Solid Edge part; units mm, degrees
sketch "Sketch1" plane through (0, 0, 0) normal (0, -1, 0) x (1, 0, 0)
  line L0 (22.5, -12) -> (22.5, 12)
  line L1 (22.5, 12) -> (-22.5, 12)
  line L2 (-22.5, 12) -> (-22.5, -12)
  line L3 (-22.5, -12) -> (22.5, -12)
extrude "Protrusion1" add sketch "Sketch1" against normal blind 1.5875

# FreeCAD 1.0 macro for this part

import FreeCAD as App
import Part
import Sketcher

V = App.Vector
Q = App.Units.Quantity


def add_polygon(sketch, points):
    """Adds a closed chain of lines whose ends are joined by coincident constraints."""
    first, n = sketch.GeometryCount, len(points)
    for a, b in zip(points, points[1:] + points[:1]):
        sketch.addGeometry(Part.LineSegment(App.Vector(*a, 0), App.Vector(*b, 0)), False)
    for i in range(n):
        sketch.addConstraint(Sketcher.Constraint("Coincident", first + i, 2, first + (i + 1) % n, 1))

doc = App.newDocument("Part")
params = doc.addObject("Spreadsheet::Sheet", "Params")
for row, (alias, value) in enumerate([
    ("sketch1_width", "45 mm"),
    ("sketch1_height", "24 mm"),
    ("pad1_length", "1.5875 mm"),
], start=1):
    params.set(f"A{row}", alias)
    params.set(f"B{row}", "=" + value)
    params.setAlias(f"B{row}", alias)

body = doc.addObject("PartDesign::Body", "Body")

sketch1 = body.newObject("Sketcher::SketchObject", "Sketch")
sketch1.AttachmentSupport = (doc.getObject("XZ_Plane"), [""])
sketch1.MapMode = "FlatFace"
add_polygon(sketch1, [(-22, -12), (22, -12), (22, 12), (-22, 12)])
sketch1.addConstraint([
    Sketcher.Constraint("Horizontal", 0),
    Sketcher.Constraint("Vertical", 1),
    Sketcher.Constraint("Horizontal", 2),
    Sketcher.Constraint("Vertical", 3),
    Sketcher.Constraint("Symmetric", 0, 2, 2, 2, -1, 1),
    Sketcher.Constraint("DistanceX", 0, 1, 0, 2, Q("45 mm")),
    Sketcher.Constraint("DistanceY", 1, 1, 1, 2, Q("24 mm")),
])
sketch1.setExpression("Constraints[9]", "Params.sketch1_width")
sketch1.setExpression("Constraints[10]", "Params.sketch1_height")
pad1 = body.newObject("PartDesign::Pad", "Pad")
pad1.Profile = sketch1
pad1.setExpression("Length", "Params.pad1_length")
pad1.Reversed = True

doc.recompute()
